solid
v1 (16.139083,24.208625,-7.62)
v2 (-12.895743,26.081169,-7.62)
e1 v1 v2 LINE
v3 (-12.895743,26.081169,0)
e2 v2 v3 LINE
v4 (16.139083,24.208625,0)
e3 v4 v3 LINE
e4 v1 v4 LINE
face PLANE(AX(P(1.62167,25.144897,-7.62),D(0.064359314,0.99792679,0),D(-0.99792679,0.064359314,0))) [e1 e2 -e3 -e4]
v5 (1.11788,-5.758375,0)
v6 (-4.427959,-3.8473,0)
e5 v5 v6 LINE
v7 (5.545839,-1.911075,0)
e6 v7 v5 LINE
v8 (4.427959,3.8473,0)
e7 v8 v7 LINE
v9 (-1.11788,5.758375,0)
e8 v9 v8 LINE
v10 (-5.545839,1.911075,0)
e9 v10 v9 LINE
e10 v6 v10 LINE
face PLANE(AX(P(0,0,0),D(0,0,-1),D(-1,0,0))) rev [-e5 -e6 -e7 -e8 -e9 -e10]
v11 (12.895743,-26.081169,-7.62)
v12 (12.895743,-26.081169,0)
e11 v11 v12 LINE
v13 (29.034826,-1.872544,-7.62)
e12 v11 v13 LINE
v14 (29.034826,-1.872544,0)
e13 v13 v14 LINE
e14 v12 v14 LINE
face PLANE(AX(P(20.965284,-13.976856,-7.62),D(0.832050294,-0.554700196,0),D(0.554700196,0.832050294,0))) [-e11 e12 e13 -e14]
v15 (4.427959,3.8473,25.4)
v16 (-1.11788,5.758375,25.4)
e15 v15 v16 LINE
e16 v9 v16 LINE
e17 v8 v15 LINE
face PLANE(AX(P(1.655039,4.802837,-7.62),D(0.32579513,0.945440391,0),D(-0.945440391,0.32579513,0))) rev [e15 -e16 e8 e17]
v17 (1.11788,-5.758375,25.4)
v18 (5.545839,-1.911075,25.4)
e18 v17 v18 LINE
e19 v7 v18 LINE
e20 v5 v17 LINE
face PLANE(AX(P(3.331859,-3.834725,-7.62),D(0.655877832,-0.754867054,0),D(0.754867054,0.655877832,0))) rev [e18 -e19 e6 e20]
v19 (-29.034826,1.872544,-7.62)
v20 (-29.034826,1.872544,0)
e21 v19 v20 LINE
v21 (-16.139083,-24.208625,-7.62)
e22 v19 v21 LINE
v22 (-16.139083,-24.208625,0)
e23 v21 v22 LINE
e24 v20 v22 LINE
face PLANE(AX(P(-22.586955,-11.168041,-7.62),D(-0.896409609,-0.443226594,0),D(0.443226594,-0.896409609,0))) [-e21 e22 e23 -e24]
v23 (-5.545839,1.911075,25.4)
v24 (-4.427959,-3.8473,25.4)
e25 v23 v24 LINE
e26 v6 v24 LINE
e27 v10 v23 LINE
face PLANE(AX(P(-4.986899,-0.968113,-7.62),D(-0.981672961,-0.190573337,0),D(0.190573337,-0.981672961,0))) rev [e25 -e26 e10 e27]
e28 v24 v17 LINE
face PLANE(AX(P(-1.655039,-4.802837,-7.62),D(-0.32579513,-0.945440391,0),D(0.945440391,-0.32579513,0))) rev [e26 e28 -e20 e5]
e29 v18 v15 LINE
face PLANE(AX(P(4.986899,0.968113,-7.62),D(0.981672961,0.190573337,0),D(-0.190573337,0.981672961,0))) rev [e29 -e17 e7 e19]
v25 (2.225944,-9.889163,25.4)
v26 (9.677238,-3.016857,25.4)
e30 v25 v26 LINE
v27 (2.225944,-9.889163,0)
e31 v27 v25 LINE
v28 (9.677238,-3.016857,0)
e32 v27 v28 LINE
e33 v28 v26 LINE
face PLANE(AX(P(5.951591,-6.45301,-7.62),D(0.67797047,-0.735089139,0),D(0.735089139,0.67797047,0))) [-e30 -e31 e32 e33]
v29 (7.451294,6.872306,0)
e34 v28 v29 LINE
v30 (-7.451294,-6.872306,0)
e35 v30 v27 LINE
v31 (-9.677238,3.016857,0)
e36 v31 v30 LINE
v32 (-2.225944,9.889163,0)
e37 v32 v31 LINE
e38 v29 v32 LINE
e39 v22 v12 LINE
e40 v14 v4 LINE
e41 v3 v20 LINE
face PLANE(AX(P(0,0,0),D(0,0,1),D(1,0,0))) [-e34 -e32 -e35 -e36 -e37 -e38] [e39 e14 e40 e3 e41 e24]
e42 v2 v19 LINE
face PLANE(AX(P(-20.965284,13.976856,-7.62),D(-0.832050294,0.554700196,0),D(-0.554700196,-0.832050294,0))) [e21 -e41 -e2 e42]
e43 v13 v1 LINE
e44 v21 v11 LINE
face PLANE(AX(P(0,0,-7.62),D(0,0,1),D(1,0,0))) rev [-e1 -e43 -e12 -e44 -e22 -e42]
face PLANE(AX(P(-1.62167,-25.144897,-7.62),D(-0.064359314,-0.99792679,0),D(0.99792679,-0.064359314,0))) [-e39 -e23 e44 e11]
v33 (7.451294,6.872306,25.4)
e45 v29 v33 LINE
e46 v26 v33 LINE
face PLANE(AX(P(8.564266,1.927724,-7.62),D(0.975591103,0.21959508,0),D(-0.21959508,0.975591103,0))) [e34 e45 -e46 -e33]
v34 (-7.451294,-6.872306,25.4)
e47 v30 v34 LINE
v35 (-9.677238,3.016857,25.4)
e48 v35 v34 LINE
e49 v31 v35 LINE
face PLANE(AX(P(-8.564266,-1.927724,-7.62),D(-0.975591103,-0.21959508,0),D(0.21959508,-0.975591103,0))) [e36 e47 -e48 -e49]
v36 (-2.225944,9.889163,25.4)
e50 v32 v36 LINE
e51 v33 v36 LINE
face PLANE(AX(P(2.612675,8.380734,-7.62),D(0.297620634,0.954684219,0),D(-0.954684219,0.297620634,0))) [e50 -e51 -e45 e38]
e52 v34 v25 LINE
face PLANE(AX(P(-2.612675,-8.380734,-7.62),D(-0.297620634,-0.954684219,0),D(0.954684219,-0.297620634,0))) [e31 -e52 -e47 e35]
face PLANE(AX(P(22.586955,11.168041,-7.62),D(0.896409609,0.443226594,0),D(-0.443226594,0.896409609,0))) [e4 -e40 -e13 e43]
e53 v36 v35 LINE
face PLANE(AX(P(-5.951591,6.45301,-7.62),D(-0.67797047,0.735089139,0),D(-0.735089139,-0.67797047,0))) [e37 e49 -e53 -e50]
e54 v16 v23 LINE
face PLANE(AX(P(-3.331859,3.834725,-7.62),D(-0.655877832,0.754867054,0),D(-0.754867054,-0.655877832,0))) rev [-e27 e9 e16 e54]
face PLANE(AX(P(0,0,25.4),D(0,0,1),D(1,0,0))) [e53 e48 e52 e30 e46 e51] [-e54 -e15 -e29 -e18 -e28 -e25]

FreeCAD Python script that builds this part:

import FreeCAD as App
import Part
import Sketcher
from FreeCAD import Vector
Q = App.Units.Quantity


def add_polygon(sketch, points):
    """Adds a closed chain of lines whose ends are joined by coincident constraints."""
    first, n = sketch.GeometryCount, len(points)
    for a, b in zip(points, points[1:] + points[:1]):
        sketch.addGeometry(Part.LineSegment(App.Vector(*a, 0), App.Vector(*b, 0)), False)
    for i in range(n):
        sketch.addConstraint(Sketcher.Constraint("Coincident", first + i, 2, first + (i + 1) % n, 1))

doc = App.newDocument("Part")
params = doc.addObject("Spreadsheet::Sheet", "Params")
for row, (alias, value) in enumerate([
    ("pad1_length", "0.3 in"),
    ("pad2_length", "1 in"),
    ("pad2_length2", "0.3 in"),
    ("pad3_length", "0.3 in"),
], start=1):
    params.set(f"A{row}", alias)
    params.set(f"B{row}", "=" + value)
    params.setAlias(f"B{row}", alias)

body = doc.addObject("PartDesign::Body", "Body")

sketch1 = body.newObject("Sketcher::SketchObject", "Sketch")
sketch1.AttachmentSupport = (doc.getObject("XY_Plane"), [""])
sketch1.MapMode = "FlatFace"
add_polygon(sketch1, [(13, -26), (29, -2), (16, 24), (-13, 26), (-29, 2), (-16, -24)])
add_polygon(sketch1, [(7, 7), (10, -3), (2, -10), (-7, -7), (-10, 3), (-2, 10)])
sketch1.addConstraint([
    Sketcher.Constraint("Symmetric", 0, 2, 3, 2, -1, 1),
    Sketcher.Constraint("Symmetric", 1, 2, 4, 2, -1, 1),
    Sketcher.Constraint("Symmetric", 2, 2, 5, 2, -1, 1),
    Sketcher.Constraint("Symmetric", 6, 2, 9, 2, -1, 1),
    Sketcher.Constraint("Symmetric", 7, 2, 10, 2, -1, 1),
    Sketcher.Constraint("Symmetric", 8, 2, 11, 2, -1, 1),
    Sketcher.Constraint("Equal", 0, 1),
    Sketcher.Constraint("Equal", 1, 2),
    Sketcher.Constraint("Equal", 6, 7),
    Sketcher.Constraint("Equal", 7, 8),
    Sketcher.Constraint("DistanceX", 2, 2, 6, 2, Q("0.8887 in")),
    Sketcher.Constraint("DistanceX", 7, 2, 5, 2, 10.669798),
    Sketcher.Constraint("DistanceY", -1, 1, 2, 2, 26.081169),
    Sketcher.Constraint("DistanceX", -1, 1, 6, 2, 9.677238),
    Sketcher.Constraint("DistanceY", 0, 2, 1, 2, 26.081169),
    Sketcher.Constraint("DistanceX", 2, 2, 0, 2, 41.930569),
    Sketcher.Constraint("DistanceY", 5, 2, 6, 2, 23.064312),
    Sketcher.Constraint("DistanceY", 7, 2, 0, 2, 8.016619),
])
pad1 = body.newObject("PartDesign::Pad", "Pad")
pad1.Profile = sketch1
pad1.setExpression("Length", "Params.pad1_length")
pad1.Reversed = True

sketch2 = body.newObject("Sketcher::SketchObject", "Sketch001")
sketch2.AttachmentSupport = (doc.getObject("XY_Plane"), [""])
sketch2.MapMode = "FlatFace"
add_polygon(sketch2, [(2, -10), (10, -3), (7, 7), (-2, 10), (-10, 3), (-7, -7)])
add_polygon(sketch2, [(4, 4), (6, -2), (1, -6), (-4, -4), (-6, 2), (-1, 6)])
sketch2.addConstraint([
    Sketcher.Constraint("Symmetric", 0, 2, 3, 2, -1, 1),
    Sketcher.Constraint("Symmetric", 1, 2, 4, 2, -1, 1),
    Sketcher.Constraint("Symmetric", 2, 2, 5, 2, -1, 1),
    Sketcher.Constraint("Symmetric", 6, 2, 9, 2, -1, 1),
    Sketcher.Constraint("Symmetric", 7, 2, 10, 2, -1, 1),
    Sketcher.Constraint("Symmetric", 8, 2, 11, 2, -1, 1),
    Sketcher.Constraint("Equal", 0, 1),
    Sketcher.Constraint("Equal", 1, 2),
    Sketcher.Constraint("Equal", 6, 7),
    Sketcher.Constraint("Equal", 7, 8),
    Sketcher.Constraint("DistanceY", 8, 2, -1, 1, 3.8473),
    Sketcher.Constraint("DistanceX", 6, 2, 0, 2, 4.1314),
    Sketcher.Constraint("DistanceY", 7, 2, 6, 2, 3.8473),
    Sketcher.Constraint("Distance", 6, 5.865879),
    Sketcher.Constraint("DistanceX", -1, 1, 0, 2, 9.677238),
    Sketcher.Constraint("DistanceX", 2, 2, 1, 2, 9.677238),
    Sketcher.Constraint("DistanceY", 0, 2, 2, 2, 12.90602),
    Sketcher.Constraint("DistanceY", 3, 2, 1, 2, 3.855449),
])
pad2 = body.newObject("PartDesign::Pad", "Pad001")
pad2.Profile = sketch2
pad2.Type = "TwoLengths"
pad2.setExpression("Length", "Params.pad2_length")
pad2.setExpression("Length2", "Params.pad2_length2")

sketch3 = body.newObject("Sketcher::SketchObject", "Sketch002")
sketch3.AttachmentSupport = (doc.getObject("XY_Plane"), [""])
sketch3.MapMode = "FlatFace"
sketch3.AttachmentOffset = App.Placement(Vector(0, 0, -0.3 * 25.4), App.Rotation())
add_polygon(sketch3, [(-1, 6), (4, 4), (6, -2), (1, -6), (-4, -4), (-6, 2)])
sketch3.addConstraint([
    Sketcher.Constraint("Symmetric", 0, 2, 3, 2, -1, 1),
    Sketcher.Constraint("Symmetric", 1, 2, 4, 2, -1, 1),
    Sketcher.Constraint("Symmetric", 2, 2, 5, 2, -1, 1),
    Sketcher.Constraint("Equal", 0, 1),
    Sketcher.Constraint("Equal", 1, 2),
    Sketcher.Constraint("DistanceY", -1, 1, 0, 2, 3.8473),
    Sketcher.Constraint("DistanceY", 2, 2, 1, 2, 3.8473),
    Sketcher.Constraint("Distance", 0, 5.865879),
    Sketcher.Constraint("DistanceX", -1, 1, 0, 2, 4.427959),
])
pad3 = body.newObject("PartDesign::Pad", "Pad002")
pad3.Profile = sketch3
pad3.setExpression("Length", "Params.pad3_length")

doc.recompute()
